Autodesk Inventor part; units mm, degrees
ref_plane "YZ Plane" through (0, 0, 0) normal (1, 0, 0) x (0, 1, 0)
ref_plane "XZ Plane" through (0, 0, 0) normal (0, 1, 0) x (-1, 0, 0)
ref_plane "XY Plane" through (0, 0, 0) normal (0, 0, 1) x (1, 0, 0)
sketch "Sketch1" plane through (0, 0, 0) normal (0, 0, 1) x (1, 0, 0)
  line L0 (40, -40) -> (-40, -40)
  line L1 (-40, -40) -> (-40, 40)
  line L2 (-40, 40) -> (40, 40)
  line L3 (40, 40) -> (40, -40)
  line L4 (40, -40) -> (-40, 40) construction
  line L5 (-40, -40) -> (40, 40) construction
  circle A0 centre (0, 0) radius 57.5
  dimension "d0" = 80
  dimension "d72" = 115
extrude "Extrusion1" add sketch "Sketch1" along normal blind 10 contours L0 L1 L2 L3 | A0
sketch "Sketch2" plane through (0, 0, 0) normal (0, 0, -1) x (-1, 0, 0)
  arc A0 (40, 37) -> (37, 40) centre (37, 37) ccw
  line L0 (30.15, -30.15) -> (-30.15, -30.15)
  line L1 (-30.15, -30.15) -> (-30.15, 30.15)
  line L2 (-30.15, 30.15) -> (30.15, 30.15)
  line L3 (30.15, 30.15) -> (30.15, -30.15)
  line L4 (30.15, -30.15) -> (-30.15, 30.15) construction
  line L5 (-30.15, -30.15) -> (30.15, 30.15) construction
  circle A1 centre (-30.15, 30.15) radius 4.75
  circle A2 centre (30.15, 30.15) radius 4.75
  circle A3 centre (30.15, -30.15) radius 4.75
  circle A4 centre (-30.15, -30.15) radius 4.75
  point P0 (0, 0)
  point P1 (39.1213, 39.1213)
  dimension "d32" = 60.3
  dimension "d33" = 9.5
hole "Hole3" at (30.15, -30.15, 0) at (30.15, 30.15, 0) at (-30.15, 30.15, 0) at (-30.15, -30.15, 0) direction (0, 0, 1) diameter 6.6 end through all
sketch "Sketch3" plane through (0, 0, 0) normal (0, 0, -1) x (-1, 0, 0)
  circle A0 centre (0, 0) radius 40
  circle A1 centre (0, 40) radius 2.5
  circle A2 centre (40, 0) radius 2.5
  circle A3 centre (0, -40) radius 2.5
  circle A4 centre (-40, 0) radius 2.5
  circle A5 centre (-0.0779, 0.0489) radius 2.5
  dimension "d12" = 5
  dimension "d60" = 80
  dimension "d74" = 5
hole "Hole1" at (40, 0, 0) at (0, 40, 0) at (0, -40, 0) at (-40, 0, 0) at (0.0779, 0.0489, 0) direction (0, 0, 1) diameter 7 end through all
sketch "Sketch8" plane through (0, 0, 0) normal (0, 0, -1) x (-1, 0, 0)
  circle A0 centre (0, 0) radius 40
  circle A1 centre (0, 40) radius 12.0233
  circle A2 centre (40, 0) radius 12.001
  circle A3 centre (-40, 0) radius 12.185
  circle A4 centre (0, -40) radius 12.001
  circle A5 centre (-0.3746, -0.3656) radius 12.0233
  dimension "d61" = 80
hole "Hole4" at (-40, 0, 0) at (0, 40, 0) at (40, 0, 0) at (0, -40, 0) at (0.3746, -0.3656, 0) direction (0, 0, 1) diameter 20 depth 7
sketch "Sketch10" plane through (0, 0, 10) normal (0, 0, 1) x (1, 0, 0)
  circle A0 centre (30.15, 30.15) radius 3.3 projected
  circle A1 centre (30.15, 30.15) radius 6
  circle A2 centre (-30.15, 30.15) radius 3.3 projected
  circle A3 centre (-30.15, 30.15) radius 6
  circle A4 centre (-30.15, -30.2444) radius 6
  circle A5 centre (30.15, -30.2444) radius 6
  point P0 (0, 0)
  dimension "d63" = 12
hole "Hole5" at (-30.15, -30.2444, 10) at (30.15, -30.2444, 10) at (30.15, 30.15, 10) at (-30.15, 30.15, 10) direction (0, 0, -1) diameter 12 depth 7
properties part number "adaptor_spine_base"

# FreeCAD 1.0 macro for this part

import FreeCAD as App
import Part
import Sketcher
Q = App.Units.Quantity

doc = App.newDocument("Part")
body = doc.addObject("PartDesign::Body", "Body")

# Sketch on XY plane
sketch1 = body.newObject("Sketcher::SketchObject", "Sketch")
sketch1.AttachmentSupport = (doc.getObject("XY_Plane"), [""])
sketch1.MapMode = "FlatFace"
sketch1.addGeometry(Part.Circle(App.Vector(0, 0, 0), App.Vector(0, 0, 1), 58), False)
sketch1.addConstraint([
    Sketcher.Constraint("Coincident", 0, 3, -1, 1),
    Sketcher.Constraint("Diameter", 0, Q("115 mm")),
])
pad1 = body.newObject("PartDesign::Pad", "Pad")
pad1.Profile = sketch1
pad1.Length = 10

# Sketch on XY plane
sketch2 = body.newObject("Sketcher::SketchObject", "Sketch001")
sketch2.AttachmentSupport = (doc.getObject("XY_Plane"), [""])
sketch2.MapMode = "FlatFace"
sketch2.addGeometry([
    Part.Circle(App.Vector(30.1, -30.1, 0), App.Vector(0, 0, 1), 3.3),
    Part.Circle(App.Vector(30.1, 30.1, 0), App.Vector(0, 0, 1), 3.3),
    Part.Circle(App.Vector(-30.1, 30.1, 0), App.Vector(0, 0, 1), 3.3),
    Part.Circle(App.Vector(-30.1, -30.1, 0), App.Vector(0, 0, 1), 3.3),
], False)
sketch2.addConstraint([
    Sketcher.Constraint("Equal", 0, 1),
    Sketcher.Constraint("Equal", 1, 2),
    Sketcher.Constraint("Equal", 2, 3),
    Sketcher.Constraint("Symmetric", 0, 3, 2, 3, -1, 1),
    Sketcher.Constraint("Symmetric", 1, 3, 3, 3, -1, 1),
    Sketcher.Constraint("Symmetric", 1, 3, 2, 3, -2),
    Sketcher.Constraint("Diameter", 0, Q("6.6 mm")),
    Sketcher.Constraint("DistanceY", 0, 3, 1, 3, Q("60.3 mm")),
    Sketcher.Constraint("DistanceX", 2, 3, 1, 3, Q("60.3 mm")),
])
doc.recompute()
hole = body.newObject("PartDesign::Hole", "Hole")
hole.Profile = sketch2
hole.ThreadType = "None"
hole.Diameter = 6.6
hole.DepthType = "ThroughAll"
hole.Reversed = True

# Sketch on XY plane
sketch3 = body.newObject("Sketcher::SketchObject", "Sketch002")
sketch3.AttachmentSupport = (doc.getObject("XY_Plane"), [""])
sketch3.MapMode = "FlatFace"
sketch3.addGeometry([
    Part.Circle(App.Vector(40, 0, 0), App.Vector(0, 0, 1), 3.5),  # 0
    Part.Circle(App.Vector(0, 40, 0), App.Vector(0, 0, 1), 3.5),  # 1
    Part.Circle(App.Vector(0, -40, 0), App.Vector(0, 0, 1), 3.5),  # 2
    Part.Circle(App.Vector(-40, 0, 0), App.Vector(0, 0, 1), 3.5),  # 3
    Part.Circle(App.Vector(0.1, 0, 0), App.Vector(0, 0, 1), 3.5),  # 4
], False)
sketch3.addConstraint([
    Sketcher.Constraint("Equal", 0, 1),
    Sketcher.Constraint("Equal", 1, 2),
    Sketcher.Constraint("Equal", 2, 3),
    Sketcher.Constraint("Equal", 3, 4),
    Sketcher.Constraint("Symmetric", 1, 3, 2, 3, -1, 1),
    Sketcher.Constraint("Symmetric", 0, 3, 3, 3, -1, 1),
    Sketcher.Constraint("PointOnObject", 0, 3, -1),
    Sketcher.Constraint("PointOnObject", 1, 3, -2),
    Sketcher.Constraint("Diameter", 0, Q("7 mm")),
    Sketcher.Constraint("DistanceX", -1, 1, 0, 3, Q("40 mm")),
    Sketcher.Constraint("DistanceY", -1, 1, 1, 3, Q("40 mm")),
    Sketcher.Constraint("DistanceX", -1, 1, 4, 3, Q("0.078 mm")),
    Sketcher.Constraint("DistanceY", -1, 1, 4, 3, Q("0.049 mm")),
])
doc.recompute()
hole2 = body.newObject("PartDesign::Hole", "Hole001")
hole2.Profile = sketch3
hole2.ThreadType = "None"
hole2.Diameter = 7
hole2.DepthType = "ThroughAll"
hole2.Reversed = True

# Sketch on XY plane
sketch4 = body.newObject("Sketcher::SketchObject", "Sketch003")
sketch4.AttachmentSupport = (doc.getObject("XY_Plane"), [""])
sketch4.MapMode = "FlatFace"
sketch4.addGeometry([
    Part.Circle(App.Vector(-40, 0, 0), App.Vector(0, 0, 1), 10),  # 0
    Part.Circle(App.Vector(0, 40, 0), App.Vector(0, 0, 1), 10),  # 1
    Part.Circle(App.Vector(40, 0, 0), App.Vector(0, 0, 1), 10),  # 2
    Part.Circle(App.Vector(0, -40, 0), App.Vector(0, 0, 1), 10),  # 3
    Part.Circle(App.Vector(0, 0, 0), App.Vector(0, 0, 1), 10),  # 4
], False)
sketch4.addConstraint([
    Sketcher.Constraint("Equal", 0, 1),
    Sketcher.Constraint("Equal", 1, 2),
    Sketcher.Constraint("Equal", 2, 3),
    Sketcher.Constraint("Equal", 3, 4),
    Sketcher.Constraint("Symmetric", 0, 3, 2, 3, -1, 1),
    Sketcher.Constraint("Symmetric", 1, 3, 3, 3, -1, 1),
    Sketcher.Constraint("PointOnObject", 0, 3, -1),
    Sketcher.Constraint("PointOnObject", 1, 3, -2),
    Sketcher.Constraint("Diameter", 0, Q("20 mm")),
    Sketcher.Constraint("DistanceX", 0, 3, -1, 1, Q("40 mm")),
    Sketcher.Constraint("DistanceY", -1, 1, 1, 3, Q("40 mm")),
    Sketcher.Constraint("DistanceX", -1, 1, 4, 3, Q("0.3746 mm")),
    Sketcher.Constraint("DistanceY", 4, 3, -1, 1, Q("0.3656 mm")),
])
doc.recompute()
hole3 = body.newObject("PartDesign::Hole", "Hole002")
hole3.Profile = sketch4
hole3.ThreadType = "None"
hole3.Diameter = 20
hole3.DepthType = "Dimension"
hole3.Depth = 7
hole3.DrillPoint = "Flat"
hole3.Reversed = True

# Sketch on XY plane
sketch5 = body.newObject("Sketcher::SketchObject", "Sketch004")
sketch5.AttachmentSupport = (doc.getObject("XY_Plane"), [""])
sketch5.MapMode = "FlatFace"
sketch5.AttachmentOffset = App.Placement(App.Vector(0, 0, 10), App.Rotation())
sketch5.addGeometry([
    Part.Circle(App.Vector(-30, -30, 0), App.Vector(0, 0, 1), 6),
    Part.Circle(App.Vector(30, -30, 0), App.Vector(0, 0, 1), 6),
    Part.Circle(App.Vector(30, 30, 0), App.Vector(0, 0, 1), 6),
    Part.Circle(App.Vector(-30, 30, 0), App.Vector(0, 0, 1), 6),
], False)
sketch5.addConstraint([
    Sketcher.Constraint("Equal", 0, 1),
    Sketcher.Constraint("Equal", 1, 2),
    Sketcher.Constraint("Equal", 2, 3),
    Sketcher.Constraint("Symmetric", 0, 3, 1, 3, -2),
    Sketcher.Constraint("Symmetric", 2, 3, 3, 3, -2),
    Sketcher.Constraint("Vertical", 1, 3, 2, 3),
    Sketcher.Constraint("Diameter", 0, Q("12 mm")),
    Sketcher.Constraint("DistanceX", 0, 3, 1, 3, Q("60.3 mm")),
    Sketcher.Constraint("DistanceY", -1, 1, 2, 3, Q("30.15 mm")),
    Sketcher.Constraint("DistanceY", 0, 3, -1, 1, Q("30.2444 mm")),
])
doc.recompute()
hole4 = body.newObject("PartDesign::Hole", "Hole003")
hole4.Profile = sketch5
hole4.ThreadType = "None"
hole4.Diameter = 12
hole4.DepthType = "Dimension"
hole4.Depth = 7
hole4.DrillPoint = "Flat"

doc.recompute()
